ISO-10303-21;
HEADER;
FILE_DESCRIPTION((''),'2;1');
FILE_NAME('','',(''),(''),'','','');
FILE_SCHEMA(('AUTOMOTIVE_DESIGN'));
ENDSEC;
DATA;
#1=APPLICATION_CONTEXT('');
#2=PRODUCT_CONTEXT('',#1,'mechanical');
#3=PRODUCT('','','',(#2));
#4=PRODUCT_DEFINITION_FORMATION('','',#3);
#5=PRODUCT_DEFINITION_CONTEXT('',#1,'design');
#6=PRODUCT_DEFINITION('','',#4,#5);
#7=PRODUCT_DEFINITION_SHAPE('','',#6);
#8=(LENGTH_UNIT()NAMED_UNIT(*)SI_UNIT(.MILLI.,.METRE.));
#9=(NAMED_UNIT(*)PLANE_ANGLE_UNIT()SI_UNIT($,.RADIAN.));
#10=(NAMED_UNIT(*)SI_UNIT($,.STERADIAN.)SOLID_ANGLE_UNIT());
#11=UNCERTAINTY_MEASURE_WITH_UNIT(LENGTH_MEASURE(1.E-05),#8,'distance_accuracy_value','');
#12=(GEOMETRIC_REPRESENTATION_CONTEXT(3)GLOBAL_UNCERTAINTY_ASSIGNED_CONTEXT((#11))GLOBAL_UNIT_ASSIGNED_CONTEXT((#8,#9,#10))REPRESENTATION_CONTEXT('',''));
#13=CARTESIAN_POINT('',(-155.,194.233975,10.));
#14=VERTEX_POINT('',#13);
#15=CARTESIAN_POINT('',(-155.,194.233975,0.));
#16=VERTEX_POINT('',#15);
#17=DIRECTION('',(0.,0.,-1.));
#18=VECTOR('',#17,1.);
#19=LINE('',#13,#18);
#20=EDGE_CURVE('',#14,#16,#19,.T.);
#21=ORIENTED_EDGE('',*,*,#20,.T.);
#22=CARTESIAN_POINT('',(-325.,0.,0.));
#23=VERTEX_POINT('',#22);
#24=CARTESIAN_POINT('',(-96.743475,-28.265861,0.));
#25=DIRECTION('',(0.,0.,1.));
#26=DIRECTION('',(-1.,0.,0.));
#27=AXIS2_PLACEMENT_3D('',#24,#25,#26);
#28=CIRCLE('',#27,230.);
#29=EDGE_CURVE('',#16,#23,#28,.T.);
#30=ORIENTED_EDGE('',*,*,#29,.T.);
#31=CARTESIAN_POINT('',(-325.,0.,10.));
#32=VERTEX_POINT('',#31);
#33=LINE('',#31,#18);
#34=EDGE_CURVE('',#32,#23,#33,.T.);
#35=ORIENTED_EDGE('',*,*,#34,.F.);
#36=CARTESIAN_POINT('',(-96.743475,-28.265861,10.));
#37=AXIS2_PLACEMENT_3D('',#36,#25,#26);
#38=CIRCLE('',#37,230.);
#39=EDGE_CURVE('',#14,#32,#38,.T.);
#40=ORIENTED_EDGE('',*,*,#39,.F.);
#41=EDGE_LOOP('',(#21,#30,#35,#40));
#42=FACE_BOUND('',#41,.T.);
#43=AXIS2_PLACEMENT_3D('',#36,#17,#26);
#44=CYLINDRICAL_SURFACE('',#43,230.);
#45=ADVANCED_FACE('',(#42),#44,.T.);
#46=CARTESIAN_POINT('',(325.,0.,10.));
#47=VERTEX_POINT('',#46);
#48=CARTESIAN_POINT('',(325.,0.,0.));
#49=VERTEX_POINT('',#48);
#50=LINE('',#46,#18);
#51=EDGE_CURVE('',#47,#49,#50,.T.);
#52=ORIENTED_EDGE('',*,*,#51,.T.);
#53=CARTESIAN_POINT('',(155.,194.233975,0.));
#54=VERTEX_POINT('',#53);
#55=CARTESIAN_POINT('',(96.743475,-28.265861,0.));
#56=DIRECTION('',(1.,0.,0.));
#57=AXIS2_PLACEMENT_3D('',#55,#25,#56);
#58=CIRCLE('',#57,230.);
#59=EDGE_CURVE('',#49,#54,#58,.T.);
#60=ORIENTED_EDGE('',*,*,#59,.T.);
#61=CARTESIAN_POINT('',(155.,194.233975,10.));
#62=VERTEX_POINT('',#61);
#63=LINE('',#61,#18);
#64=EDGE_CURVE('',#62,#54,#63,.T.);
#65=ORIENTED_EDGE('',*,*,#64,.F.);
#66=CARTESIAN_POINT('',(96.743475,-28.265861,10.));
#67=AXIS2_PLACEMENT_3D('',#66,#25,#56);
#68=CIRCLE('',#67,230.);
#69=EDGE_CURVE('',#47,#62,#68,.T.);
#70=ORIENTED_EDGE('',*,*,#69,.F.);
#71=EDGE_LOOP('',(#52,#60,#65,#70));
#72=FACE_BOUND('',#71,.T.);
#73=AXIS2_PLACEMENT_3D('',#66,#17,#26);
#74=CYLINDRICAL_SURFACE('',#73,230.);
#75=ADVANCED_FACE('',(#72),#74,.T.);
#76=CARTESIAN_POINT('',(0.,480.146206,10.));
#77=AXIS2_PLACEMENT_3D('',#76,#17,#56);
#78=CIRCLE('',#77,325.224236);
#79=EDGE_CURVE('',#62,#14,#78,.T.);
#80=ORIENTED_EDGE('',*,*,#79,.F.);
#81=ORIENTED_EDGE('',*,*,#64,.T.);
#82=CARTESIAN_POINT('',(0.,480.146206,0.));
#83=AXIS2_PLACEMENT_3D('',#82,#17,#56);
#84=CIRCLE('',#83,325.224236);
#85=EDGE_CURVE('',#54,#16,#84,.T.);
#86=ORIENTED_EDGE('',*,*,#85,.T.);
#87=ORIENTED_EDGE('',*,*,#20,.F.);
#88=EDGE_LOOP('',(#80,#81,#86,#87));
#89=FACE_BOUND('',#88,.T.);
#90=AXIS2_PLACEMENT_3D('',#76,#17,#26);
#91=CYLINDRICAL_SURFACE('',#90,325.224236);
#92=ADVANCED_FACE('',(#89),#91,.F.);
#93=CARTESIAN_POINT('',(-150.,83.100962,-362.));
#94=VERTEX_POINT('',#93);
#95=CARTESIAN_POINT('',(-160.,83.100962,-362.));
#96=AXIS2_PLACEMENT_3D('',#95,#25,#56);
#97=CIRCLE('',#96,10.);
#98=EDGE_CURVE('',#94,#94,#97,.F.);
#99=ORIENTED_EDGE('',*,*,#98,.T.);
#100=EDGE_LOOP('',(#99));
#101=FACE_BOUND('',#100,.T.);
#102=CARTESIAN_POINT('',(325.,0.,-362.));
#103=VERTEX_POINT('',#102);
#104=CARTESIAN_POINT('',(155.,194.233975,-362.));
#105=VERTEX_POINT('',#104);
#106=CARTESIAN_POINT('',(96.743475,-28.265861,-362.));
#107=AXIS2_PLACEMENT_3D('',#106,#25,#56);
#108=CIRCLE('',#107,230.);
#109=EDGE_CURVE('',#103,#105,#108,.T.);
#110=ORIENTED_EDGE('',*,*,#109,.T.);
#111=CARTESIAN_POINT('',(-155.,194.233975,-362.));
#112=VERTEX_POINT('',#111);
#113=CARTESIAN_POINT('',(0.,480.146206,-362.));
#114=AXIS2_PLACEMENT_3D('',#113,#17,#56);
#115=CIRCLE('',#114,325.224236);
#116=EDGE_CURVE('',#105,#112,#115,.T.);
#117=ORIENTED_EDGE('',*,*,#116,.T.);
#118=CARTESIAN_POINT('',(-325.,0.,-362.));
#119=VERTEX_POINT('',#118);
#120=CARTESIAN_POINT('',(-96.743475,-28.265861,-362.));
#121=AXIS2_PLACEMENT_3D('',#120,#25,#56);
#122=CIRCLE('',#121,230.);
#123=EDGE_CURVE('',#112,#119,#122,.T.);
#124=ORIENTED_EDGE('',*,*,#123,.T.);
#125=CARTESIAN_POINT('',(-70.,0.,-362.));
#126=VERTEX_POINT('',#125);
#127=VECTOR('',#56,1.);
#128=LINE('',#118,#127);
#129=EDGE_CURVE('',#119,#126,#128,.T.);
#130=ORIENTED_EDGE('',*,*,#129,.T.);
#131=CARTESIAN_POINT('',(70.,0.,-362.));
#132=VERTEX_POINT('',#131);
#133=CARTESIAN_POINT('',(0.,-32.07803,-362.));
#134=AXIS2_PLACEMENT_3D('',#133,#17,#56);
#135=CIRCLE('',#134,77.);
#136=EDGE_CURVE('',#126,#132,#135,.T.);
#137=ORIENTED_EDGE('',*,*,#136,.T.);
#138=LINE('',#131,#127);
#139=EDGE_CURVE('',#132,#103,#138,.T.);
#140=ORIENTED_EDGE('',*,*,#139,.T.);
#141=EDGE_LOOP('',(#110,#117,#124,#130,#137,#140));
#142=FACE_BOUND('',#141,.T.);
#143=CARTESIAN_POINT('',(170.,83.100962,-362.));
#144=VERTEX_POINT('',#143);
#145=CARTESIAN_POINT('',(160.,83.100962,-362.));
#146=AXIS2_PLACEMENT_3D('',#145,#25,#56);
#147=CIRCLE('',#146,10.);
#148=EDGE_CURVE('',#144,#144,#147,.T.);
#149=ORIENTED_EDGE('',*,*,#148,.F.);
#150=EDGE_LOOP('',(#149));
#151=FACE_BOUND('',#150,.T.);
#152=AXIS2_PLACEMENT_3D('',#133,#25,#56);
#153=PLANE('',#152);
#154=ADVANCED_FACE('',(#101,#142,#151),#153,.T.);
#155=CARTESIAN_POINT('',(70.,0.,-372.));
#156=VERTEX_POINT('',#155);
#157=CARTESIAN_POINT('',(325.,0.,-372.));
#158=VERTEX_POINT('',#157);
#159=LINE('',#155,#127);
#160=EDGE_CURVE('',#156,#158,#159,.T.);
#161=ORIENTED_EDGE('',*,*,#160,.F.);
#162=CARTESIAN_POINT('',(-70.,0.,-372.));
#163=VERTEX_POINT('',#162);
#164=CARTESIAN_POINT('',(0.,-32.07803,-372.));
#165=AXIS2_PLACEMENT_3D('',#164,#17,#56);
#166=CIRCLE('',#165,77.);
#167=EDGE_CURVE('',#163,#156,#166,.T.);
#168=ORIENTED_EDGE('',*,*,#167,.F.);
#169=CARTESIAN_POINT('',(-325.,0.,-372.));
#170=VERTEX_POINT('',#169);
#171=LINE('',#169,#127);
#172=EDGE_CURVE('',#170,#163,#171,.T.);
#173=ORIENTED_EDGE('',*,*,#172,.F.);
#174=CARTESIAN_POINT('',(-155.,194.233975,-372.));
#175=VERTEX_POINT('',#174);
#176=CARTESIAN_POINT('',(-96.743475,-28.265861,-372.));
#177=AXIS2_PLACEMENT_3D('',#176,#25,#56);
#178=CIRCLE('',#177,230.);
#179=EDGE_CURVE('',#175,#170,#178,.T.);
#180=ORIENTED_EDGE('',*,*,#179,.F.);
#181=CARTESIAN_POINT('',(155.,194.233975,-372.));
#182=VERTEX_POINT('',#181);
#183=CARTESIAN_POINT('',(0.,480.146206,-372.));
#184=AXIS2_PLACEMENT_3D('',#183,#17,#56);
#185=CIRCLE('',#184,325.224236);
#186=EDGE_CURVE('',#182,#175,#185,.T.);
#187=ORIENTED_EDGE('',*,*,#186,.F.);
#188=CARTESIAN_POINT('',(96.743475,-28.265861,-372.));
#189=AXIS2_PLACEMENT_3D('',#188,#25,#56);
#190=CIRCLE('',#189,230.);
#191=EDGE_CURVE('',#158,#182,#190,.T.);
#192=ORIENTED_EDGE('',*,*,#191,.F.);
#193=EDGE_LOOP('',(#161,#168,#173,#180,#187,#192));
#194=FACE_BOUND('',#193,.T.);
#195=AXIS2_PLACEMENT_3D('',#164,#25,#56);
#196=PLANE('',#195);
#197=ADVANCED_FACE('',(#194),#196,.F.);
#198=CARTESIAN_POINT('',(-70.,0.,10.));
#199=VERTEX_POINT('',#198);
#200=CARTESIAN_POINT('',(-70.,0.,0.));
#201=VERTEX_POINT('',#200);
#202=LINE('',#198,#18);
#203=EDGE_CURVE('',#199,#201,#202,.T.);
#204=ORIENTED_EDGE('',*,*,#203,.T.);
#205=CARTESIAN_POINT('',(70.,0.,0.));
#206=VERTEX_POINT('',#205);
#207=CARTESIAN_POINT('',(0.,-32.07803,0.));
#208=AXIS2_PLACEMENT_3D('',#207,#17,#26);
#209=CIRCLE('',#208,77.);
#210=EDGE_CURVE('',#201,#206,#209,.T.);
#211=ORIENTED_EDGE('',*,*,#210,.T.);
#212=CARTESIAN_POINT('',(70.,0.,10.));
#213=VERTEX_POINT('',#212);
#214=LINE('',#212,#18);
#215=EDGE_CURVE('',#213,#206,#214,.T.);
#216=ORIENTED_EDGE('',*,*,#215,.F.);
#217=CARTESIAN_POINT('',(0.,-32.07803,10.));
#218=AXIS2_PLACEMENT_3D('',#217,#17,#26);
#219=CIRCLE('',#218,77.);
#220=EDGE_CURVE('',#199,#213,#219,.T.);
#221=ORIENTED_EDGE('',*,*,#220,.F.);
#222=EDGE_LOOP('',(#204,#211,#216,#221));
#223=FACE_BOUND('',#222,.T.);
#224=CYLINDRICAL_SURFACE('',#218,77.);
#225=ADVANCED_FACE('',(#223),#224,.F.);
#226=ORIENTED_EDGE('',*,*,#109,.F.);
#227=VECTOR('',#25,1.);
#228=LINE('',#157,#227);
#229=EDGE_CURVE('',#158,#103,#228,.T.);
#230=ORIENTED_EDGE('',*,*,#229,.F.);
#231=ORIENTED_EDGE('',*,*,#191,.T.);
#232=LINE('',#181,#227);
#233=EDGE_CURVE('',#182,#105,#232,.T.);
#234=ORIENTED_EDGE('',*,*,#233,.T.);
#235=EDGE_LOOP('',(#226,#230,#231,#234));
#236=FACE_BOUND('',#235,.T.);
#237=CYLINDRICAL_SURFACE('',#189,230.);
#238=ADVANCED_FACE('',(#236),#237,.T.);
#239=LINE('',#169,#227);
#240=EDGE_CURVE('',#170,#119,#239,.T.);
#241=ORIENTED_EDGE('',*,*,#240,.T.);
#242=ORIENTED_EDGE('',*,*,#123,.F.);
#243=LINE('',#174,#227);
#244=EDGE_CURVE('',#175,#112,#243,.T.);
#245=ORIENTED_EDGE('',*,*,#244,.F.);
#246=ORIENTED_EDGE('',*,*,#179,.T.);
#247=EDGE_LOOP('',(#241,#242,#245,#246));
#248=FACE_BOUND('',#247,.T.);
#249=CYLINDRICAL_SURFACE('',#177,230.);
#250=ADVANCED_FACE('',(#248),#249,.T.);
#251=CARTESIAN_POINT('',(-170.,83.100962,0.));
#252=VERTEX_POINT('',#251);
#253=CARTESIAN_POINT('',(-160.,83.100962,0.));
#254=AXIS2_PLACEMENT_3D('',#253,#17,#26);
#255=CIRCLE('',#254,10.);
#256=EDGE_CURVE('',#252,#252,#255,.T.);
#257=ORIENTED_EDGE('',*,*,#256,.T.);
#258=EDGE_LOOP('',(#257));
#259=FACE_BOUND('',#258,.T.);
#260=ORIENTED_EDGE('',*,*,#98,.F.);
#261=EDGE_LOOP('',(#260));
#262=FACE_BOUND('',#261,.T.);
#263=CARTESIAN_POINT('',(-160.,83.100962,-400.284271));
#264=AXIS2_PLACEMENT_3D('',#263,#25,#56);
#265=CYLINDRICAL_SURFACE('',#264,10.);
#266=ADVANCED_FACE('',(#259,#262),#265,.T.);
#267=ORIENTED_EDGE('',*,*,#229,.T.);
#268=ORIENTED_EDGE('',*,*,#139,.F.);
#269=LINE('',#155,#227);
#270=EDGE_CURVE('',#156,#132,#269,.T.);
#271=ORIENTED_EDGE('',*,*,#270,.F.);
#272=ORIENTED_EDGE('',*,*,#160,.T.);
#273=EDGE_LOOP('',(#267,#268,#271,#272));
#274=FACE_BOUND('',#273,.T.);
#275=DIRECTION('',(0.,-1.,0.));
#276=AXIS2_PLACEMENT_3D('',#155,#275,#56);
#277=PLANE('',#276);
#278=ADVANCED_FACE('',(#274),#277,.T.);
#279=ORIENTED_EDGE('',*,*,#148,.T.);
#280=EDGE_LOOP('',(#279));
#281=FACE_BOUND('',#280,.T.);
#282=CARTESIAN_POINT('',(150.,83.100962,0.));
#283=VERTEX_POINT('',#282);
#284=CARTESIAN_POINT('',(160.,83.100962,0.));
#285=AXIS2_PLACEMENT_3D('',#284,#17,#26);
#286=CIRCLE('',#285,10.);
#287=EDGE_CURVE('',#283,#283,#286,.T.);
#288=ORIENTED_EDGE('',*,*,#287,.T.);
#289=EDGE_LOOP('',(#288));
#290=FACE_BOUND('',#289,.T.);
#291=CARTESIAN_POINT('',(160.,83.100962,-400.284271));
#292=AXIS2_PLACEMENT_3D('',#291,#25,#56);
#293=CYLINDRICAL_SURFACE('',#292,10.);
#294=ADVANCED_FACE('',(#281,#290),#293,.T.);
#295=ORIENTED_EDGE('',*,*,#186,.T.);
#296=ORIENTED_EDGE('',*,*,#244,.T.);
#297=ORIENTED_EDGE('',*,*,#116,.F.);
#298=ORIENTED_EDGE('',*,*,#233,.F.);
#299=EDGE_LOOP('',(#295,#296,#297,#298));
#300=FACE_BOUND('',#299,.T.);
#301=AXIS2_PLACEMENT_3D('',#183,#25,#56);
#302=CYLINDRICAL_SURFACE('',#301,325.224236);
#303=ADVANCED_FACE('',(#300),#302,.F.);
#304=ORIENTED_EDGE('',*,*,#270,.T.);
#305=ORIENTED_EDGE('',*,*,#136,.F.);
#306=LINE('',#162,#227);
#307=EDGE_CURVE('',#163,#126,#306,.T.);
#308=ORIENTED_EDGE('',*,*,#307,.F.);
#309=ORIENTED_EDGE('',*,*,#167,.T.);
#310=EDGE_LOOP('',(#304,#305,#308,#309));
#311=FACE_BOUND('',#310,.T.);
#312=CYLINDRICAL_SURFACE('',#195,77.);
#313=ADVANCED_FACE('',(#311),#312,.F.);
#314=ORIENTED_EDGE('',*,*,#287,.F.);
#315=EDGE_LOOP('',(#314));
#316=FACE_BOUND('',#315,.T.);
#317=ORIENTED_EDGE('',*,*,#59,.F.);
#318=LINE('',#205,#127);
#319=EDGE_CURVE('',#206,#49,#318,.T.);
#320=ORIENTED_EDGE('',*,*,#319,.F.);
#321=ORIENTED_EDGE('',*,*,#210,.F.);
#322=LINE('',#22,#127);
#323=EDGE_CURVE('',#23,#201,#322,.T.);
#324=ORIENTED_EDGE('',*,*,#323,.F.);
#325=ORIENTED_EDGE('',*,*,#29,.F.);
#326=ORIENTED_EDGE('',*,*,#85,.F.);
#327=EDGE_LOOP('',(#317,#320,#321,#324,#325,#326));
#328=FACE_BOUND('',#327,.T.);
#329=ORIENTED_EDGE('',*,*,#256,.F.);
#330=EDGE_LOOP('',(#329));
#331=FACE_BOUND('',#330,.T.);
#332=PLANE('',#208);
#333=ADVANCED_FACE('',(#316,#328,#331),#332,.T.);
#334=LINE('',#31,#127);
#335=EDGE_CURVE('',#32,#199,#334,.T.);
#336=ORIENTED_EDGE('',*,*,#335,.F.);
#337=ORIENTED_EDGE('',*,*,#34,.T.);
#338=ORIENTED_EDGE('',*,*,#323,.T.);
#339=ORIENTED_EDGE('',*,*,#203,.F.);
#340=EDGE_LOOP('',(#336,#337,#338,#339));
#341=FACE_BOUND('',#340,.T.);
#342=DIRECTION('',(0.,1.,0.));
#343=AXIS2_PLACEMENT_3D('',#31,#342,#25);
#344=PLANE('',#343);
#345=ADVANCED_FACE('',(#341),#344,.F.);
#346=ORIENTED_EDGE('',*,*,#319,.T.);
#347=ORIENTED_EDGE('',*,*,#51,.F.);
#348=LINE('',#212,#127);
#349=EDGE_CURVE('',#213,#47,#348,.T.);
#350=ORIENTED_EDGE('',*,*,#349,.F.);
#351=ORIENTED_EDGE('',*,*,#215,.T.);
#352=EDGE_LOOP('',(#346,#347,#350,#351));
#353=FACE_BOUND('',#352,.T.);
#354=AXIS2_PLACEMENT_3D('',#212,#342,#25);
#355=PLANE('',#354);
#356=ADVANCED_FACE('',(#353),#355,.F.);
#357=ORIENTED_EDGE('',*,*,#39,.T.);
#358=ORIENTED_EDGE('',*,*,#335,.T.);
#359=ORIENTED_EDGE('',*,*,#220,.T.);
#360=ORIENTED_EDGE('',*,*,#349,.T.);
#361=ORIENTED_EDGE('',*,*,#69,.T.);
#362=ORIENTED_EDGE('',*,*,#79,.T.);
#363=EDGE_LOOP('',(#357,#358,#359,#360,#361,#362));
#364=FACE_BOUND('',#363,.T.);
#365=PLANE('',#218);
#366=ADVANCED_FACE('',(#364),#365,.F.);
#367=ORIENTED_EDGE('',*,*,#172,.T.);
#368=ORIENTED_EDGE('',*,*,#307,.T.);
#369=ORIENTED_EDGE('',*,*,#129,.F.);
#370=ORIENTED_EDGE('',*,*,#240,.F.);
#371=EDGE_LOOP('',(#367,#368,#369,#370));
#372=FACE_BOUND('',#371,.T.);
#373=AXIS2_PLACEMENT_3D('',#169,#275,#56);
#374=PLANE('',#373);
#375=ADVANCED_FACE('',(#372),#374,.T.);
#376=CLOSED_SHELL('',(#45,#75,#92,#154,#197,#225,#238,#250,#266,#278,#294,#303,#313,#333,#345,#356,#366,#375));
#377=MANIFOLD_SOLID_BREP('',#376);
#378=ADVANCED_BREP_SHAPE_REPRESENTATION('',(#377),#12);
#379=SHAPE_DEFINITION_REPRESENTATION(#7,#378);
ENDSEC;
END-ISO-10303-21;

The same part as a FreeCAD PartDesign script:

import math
import FreeCAD as App
import Part
import Sketcher

V = App.Vector

doc = App.newDocument("Part")
body = doc.addObject("PartDesign::Body", "Body")

# Sketch on XY plane
sketch1 = body.newObject("Sketcher::SketchObject", "Sketch")
sketch1.AttachmentSupport = (doc.getObject("XY_Plane"), [""])
sketch1.MapMode = "FlatFace"
sketch1.addGeometry([
    Part.LineSegment(V(-325, 0, 0), V(-70, 0, 0)),  # 0
    Part.ArcOfCircle(Part.Circle(V(0, -32, 0), V(0, 0, 1), 77), math.radians(25), math.radians(155)),  # 1
    Part.LineSegment(V(70, 0, 0), V(325, 0, 0)),  # 2
    Part.ArcOfCircle(Part.Circle(V(97, -28, 0), V(0, 0, 1), 230), math.radians(7), math.radians(75)),  # 3
    Part.ArcOfCircle(Part.Circle(V(0, 480, 0), V(0, 0, 1), 325), math.radians(-118), math.radians(-62)),  # 4
    Part.ArcOfCircle(Part.Circle(V(-97, -28, 0), V(0, 0, 1), 230), math.radians(105), math.radians(173)),  # 5
], False)
sketch1.addConstraint([
    Sketcher.Constraint("Coincident", 0, 2, 1, 2),
    Sketcher.Constraint("Coincident", 1, 1, 2, 1),
    Sketcher.Constraint("Coincident", 2, 2, 3, 1),
    Sketcher.Constraint("Coincident", 3, 2, 4, 2),
    Sketcher.Constraint("Coincident", 4, 1, 5, 1),
    Sketcher.Constraint("Coincident", 5, 2, 0, 1),
    Sketcher.Constraint("Horizontal", 0),
    Sketcher.Constraint("Horizontal", 2),
    Sketcher.Constraint("Equal", 3, 5),
    Sketcher.Constraint("Symmetric", 0, 2, 1, 1, -1, 1),
    Sketcher.Constraint("Symmetric", 3, 3, 5, 3, -2),
    Sketcher.Constraint("PointOnObject", 1, 3, -2),
    Sketcher.Constraint("PointOnObject", 4, 3, -2),
    Sketcher.Constraint("Radius", 1, 77.0),
    Sketcher.Constraint("Radius", 3, 230.0),
    Sketcher.Constraint("DistanceX", 0, 1, 0, 2, 255.0),
    Sketcher.Constraint("DistanceX", 0, 2, -1, 1, 70.0),
    Sketcher.Constraint("DistanceX", -1, 1, 3, 2, 155.0),
    Sketcher.Constraint("Radius", 4, 325.224236),
    Sketcher.Constraint("DistanceY", 3, 3, -1, 1, 28.265861),
])
pad1 = body.newObject("PartDesign::Pad", "Pad")
pad1.Profile = sketch1
pad1.Length = 10
body2 = doc.addObject("PartDesign::Body", "Body001")

# Sketch on XY plane
sketch2 = body2.newObject("Sketcher::SketchObject", "Sketch001")
sketch2.AttachmentSupport = (doc.getObject("XY_Plane001"), [""])
sketch2.MapMode = "FlatFace"
sketch2.AttachmentOffset = App.Placement(V(0, 0, -362), App.Rotation())
sketch2.addGeometry([
    Part.LineSegment(V(70, 0, 0), V(325, 0, 0)),  # 0
    Part.ArcOfCircle(Part.Circle(V(97, -28, 0), V(0, 0, 1), 230), math.radians(7), math.radians(75)),  # 1
    Part.ArcOfCircle(Part.Circle(V(0, 480, 0), V(0, 0, 1), 325), math.radians(-118), math.radians(-62)),  # 2
    Part.ArcOfCircle(Part.Circle(V(-97, -28, 0), V(0, 0, 1), 230), math.radians(105), math.radians(173)),  # 3
    Part.LineSegment(V(-325, 0, 0), V(-70, 0, 0)),  # 4
    Part.ArcOfCircle(Part.Circle(V(0, -32, 0), V(0, 0, 1), 77), math.radians(25), math.radians(155)),  # 5
], False)
sketch2.addConstraint([
    Sketcher.Constraint("Coincident", 0, 2, 1, 1),
    Sketcher.Constraint("Coincident", 1, 2, 2, 2),
    Sketcher.Constraint("Coincident", 2, 1, 3, 1),
    Sketcher.Constraint("Coincident", 3, 2, 4, 1),
    Sketcher.Constraint("Coincident", 4, 2, 5, 2),
    Sketcher.Constraint("Coincident", 5, 1, 0, 1),
    Sketcher.Constraint("Horizontal", 0),
    Sketcher.Constraint("Horizontal", 4),
    Sketcher.Constraint("Equal", 1, 3),
    Sketcher.Constraint("Symmetric", 0, 2, 3, 2, -1, 1),
    Sketcher.Constraint("Symmetric", 1, 3, 3, 3, -2),
    Sketcher.Constraint("PointOnObject", 2, 3, -2),
    Sketcher.Constraint("PointOnObject", 5, 3, -2),
    Sketcher.Constraint("Radius", 1, 230.0),
    Sketcher.Constraint("Radius", 5, 77.0),
    Sketcher.Constraint("DistanceX", 0, 1, 0, 2, 255.0),
    Sketcher.Constraint("DistanceX", -1, 1, 0, 2, 325.0),
    Sketcher.Constraint("DistanceX", -1, 1, 1, 2, 155.0),
    Sketcher.Constraint("Radius", 2, 325.224236),
    Sketcher.Constraint("DistanceY", 1, 3, -1, 1, 28.265861),
])
pad2 = body2.newObject("PartDesign::Pad", "Pad001")
pad2.Profile = sketch2
pad2.Length = 10
pad2.Reversed = True
body.AllowCompound = True
doc.recompute()

boolean = body.newObject("PartDesign::Boolean", "Boolean")
boolean.Type = "Fuse"
boolean.addObjects([body2])

# Sketch on XY plane
sketch3 = body.newObject("Sketcher::SketchObject", "Sketch002")
sketch3.AttachmentSupport = (doc.getObject("XY_Plane"), [""])
sketch3.MapMode = "FlatFace"
sketch3.AttachmentOffset = App.Placement(V(0, 0, 10), App.Rotation())
sketch3.addGeometry([
    Part.Circle(V(-160, 83, 0), V(0, 0, 1), 10),
    Part.Circle(V(160, 83, 0), V(0, 0, 1), 10),
], False)
sketch3.addConstraint([
    Sketcher.Constraint("Equal", 0, 1),
    Sketcher.Constraint("Symmetric", 0, 3, 1, 3, -2),
    Sketcher.Constraint("Diameter", 0, 20.0),
    Sketcher.Constraint("DistanceX", 0, 3, -1, 1, 160.0),
    Sketcher.Constraint("DistanceY", -1, 1, 0, 3, 83.100962),
])
pad3 = body.newObject("PartDesign::Pad", "Pad002")
pad3.Profile = sketch3
pad3.Length = 382
pad3.Reversed = True

doc.recompute()
